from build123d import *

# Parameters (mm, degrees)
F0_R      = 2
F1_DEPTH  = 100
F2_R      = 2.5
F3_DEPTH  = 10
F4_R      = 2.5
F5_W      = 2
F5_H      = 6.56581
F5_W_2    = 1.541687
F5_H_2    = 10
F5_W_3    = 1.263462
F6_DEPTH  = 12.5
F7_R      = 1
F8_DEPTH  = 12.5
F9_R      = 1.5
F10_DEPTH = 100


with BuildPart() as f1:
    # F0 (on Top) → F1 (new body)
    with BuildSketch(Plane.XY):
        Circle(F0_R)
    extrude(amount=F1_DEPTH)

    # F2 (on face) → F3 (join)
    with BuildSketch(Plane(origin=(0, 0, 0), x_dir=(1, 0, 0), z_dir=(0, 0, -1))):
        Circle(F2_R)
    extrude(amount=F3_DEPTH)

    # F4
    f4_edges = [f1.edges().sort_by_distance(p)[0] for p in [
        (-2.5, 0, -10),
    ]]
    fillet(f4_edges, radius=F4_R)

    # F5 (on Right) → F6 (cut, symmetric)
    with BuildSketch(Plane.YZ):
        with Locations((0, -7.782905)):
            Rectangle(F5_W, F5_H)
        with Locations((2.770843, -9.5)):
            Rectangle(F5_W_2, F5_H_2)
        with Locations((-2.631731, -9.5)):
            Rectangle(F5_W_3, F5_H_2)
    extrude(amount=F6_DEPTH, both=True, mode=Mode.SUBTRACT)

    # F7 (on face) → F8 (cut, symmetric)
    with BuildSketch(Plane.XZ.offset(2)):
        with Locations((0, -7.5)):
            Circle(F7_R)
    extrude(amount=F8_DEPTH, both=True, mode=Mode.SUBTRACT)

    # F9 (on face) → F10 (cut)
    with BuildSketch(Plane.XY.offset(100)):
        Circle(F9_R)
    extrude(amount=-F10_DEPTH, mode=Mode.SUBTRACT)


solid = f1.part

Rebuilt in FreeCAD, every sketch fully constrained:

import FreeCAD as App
import Part
import Sketcher
from FreeCAD import Vector
Q = App.Units.Quantity


def edges_at(feature, points):
    """Names of the edges that pass closest to the given points."""
    edges = feature.Shape.Edges
    near = lambda p: min(range(len(edges)), key=lambda i: edges[i].distToShape(Part.Vertex(*p))[0])
    return sorted({f"Edge{near(p) + 1}" for p in points})

doc = App.newDocument("Part")
params = doc.addObject("Spreadsheet::Sheet", "Params")
for row, (alias, value) in enumerate([
    ("sketch1_diameter", "4 mm"),
    ("pad1_length", "100 mm"),
    ("sketch2_diameter", "5 mm"),
    ("pad2_length", "10 mm"),
    ("fillet_radius", "2.5 mm"),
    ("sketch3_width", "2 mm"),
    ("sketch3_height", "10 mm"),
    ("pocket1_length", "25 mm"),
    ("sketch4_diameter", "2 mm"),
    ("pocket2_length", "25 mm"),
    ("sketch5_diameter", "3 mm"),
    ("pocket3_length", "100 mm"),
], start=1):
    params.set(f"A{row}", alias)
    params.set(f"B{row}", "=" + value)
    params.setAlias(f"B{row}", alias)

body = doc.addObject("PartDesign::Body", "Body")

# Sketch on XY plane
sketch1 = body.newObject("Sketcher::SketchObject", "Sketch")
sketch1.AttachmentSupport = (doc.getObject("XY_Plane"), [""])
sketch1.MapMode = "FlatFace"
sketch1.addGeometry(Part.Circle(Vector(0, 0, 0), Vector(0, 0, 1), 2), False)
sketch1.addConstraint([
    Sketcher.Constraint("Coincident", 0, 3, -1, 1),
    Sketcher.Constraint("Diameter", 0, Q("4 mm")),
])
sketch1.setExpression("Constraints[1]", "Params.sketch1_diameter")
pad1 = body.newObject("PartDesign::Pad", "Pad")
pad1.Profile = sketch1
pad1.setExpression("Length", "Params.pad1_length")

# Sketch on XY plane
sketch2 = body.newObject("Sketcher::SketchObject", "Sketch001")
sketch2.AttachmentSupport = (doc.getObject("XY_Plane"), [""])
sketch2.MapMode = "FlatFace"
sketch2.addGeometry(Part.Circle(Vector(0, 0, 0), Vector(0, 0, 1), 2.5), False)
sketch2.addConstraint([
    Sketcher.Constraint("Coincident", 0, 3, -1, 1),
    Sketcher.Constraint("Diameter", 0, Q("5 mm")),
])
sketch2.setExpression("Constraints[1]", "Params.sketch2_diameter")
pad2 = body.newObject("PartDesign::Pad", "Pad001")
pad2.Profile = sketch2
pad2.setExpression("Length", "Params.pad2_length")
pad2.Reversed = True
doc.recompute()

fillet = body.newObject("PartDesign::Fillet", "Fillet")
fillet.Base = (pad2, edges_at(pad2, [(-2.5, 0, -10)]))
fillet.setExpression("Radius", "Params.fillet_radius")

# Sketch on YZ plane
sketch3 = body.newObject("Sketcher::SketchObject", "Sketch002")
sketch3.AttachmentSupport = (doc.getObject("YZ_Plane"), [""])
sketch3.MapMode = "FlatFace"
sketch3.addGeometry([
    Part.LineSegment(Vector(-1, -4.5, 0), Vector(-1, -11.06581, 0)),  # 0
    Part.LineSegment(Vector(-1, -11.06581, 0), Vector(1, -11.06581, 0)),  # 1
    Part.LineSegment(Vector(1, -11.06581, 0), Vector(1, -4.5, 0)),  # 2
    Part.LineSegment(Vector(1, -4.5, 0), Vector(-1, -4.5, 0)),  # 3
    Part.LineSegment(Vector(1.999999, -4.5, 0), Vector(1.999999, -14.5, 0)),  # 4
    Part.LineSegment(Vector(1.999999, -14.5, 0), Vector(3.541686, -14.5, 0)),  # 5
    Part.LineSegment(Vector(3.541686, -14.5, 0), Vector(3.541686, -4.5, 0)),  # 6
    Part.LineSegment(Vector(3.541686, -4.5, 0), Vector(1.999999, -4.5, 0)),  # 7
    Part.LineSegment(Vector(-3.263462, -4.5, 0), Vector(-3.263462, -14.5, 0)),  # 8
    Part.LineSegment(Vector(-3.263462, -14.5, 0), Vector(-2, -14.5, 0)),  # 9
    Part.LineSegment(Vector(-2, -14.5, 0), Vector(-2, -4.5, 0)),  # 10
    Part.LineSegment(Vector(-2, -4.5, 0), Vector(-3.263462, -4.5, 0)),  # 11
], False)
sketch3.addConstraint([
    Sketcher.Constraint("Coincident", 0, 2, 1, 1),
    Sketcher.Constraint("Coincident", 1, 2, 2, 1),
    Sketcher.Constraint("Coincident", 2, 2, 3, 1),
    Sketcher.Constraint("Coincident", 3, 2, 0, 1),
    Sketcher.Constraint("Coincident", 4, 2, 5, 1),
    Sketcher.Constraint("Coincident", 5, 2, 6, 1),
    Sketcher.Constraint("Coincident", 6, 2, 7, 1),
    Sketcher.Constraint("Coincident", 7, 2, 4, 1),
    Sketcher.Constraint("Coincident", 8, 2, 9, 1),
    Sketcher.Constraint("Coincident", 9, 2, 10, 1),
    Sketcher.Constraint("Coincident", 10, 2, 11, 1),
    Sketcher.Constraint("Coincident", 11, 2, 8, 1),
    Sketcher.Constraint("Vertical", 0),
    Sketcher.Constraint("Horizontal", 1),
    Sketcher.Constraint("Vertical", 2),
    Sketcher.Constraint("Horizontal", 3),
    Sketcher.Constraint("Vertical", 4),
    Sketcher.Constraint("Horizontal", 5),
    Sketcher.Constraint("Vertical", 6),
    Sketcher.Constraint("Horizontal", 7),
    Sketcher.Constraint("Vertical", 8),
    Sketcher.Constraint("Horizontal", 9),
    Sketcher.Constraint("Vertical", 10),
    Sketcher.Constraint("Horizontal", 11),
    Sketcher.Constraint("Symmetric", 4, 2, 9, 2, -2),
    Sketcher.Constraint("Horizontal", 3, 2, 6, 2),
    Sketcher.Constraint("Horizontal", 7, 2, 10, 2),
    Sketcher.Constraint("DistanceX", 1, 1, 1, 2, Q("2 mm")),
    Sketcher.Constraint("DistanceY", 4, 2, 4, 1, Q("10 mm")),
    Sketcher.Constraint("DistanceX", 0, 2, -1, 1, Q("1 mm")),
    Sketcher.Constraint("DistanceX", -1, 1, 4, 2, Q("1.999999 mm")),
    Sketcher.Constraint("DistanceY", 2, 2, -1, 1, Q("4.5 mm")),
    Sketcher.Constraint("DistanceY", 0, 2, 0, 1, Q("6.56581 mm")),
    Sketcher.Constraint("DistanceX", 5, 1, 5, 2, Q("1.541687 mm")),
    Sketcher.Constraint("DistanceX", 9, 1, 9, 2, Q("1.263462 mm")),
])
sketch3.setExpression("Constraints[27]", "Params.sketch3_width")
sketch3.setExpression("Constraints[28]", "Params.sketch3_height")
pocket1 = body.newObject("PartDesign::Pocket", "Pocket")
pocket1.Profile = sketch3
pocket1.setExpression("Length", "Params.pocket1_length")
pocket1.Midplane = True

# Sketch on XZ plane
sketch4 = body.newObject("Sketcher::SketchObject", "Sketch003")
sketch4.AttachmentSupport = (doc.getObject("XZ_Plane"), [""])
sketch4.MapMode = "FlatFace"
sketch4.AttachmentOffset = App.Placement(Vector(0, 0, 2), App.Rotation())
sketch4.addGeometry(Part.Circle(Vector(0, -7.5, 0), Vector(0, 0, 1), 1), False)
sketch4.addConstraint([
    Sketcher.Constraint("PointOnObject", 0, 3, -2),
    Sketcher.Constraint("Diameter", 0, Q("2 mm")),
    Sketcher.Constraint("DistanceY", 0, 3, -1, 1, Q("7.5 mm")),
])
sketch4.setExpression("Constraints[1]", "Params.sketch4_diameter")
pocket2 = body.newObject("PartDesign::Pocket", "Pocket001")
pocket2.Profile = sketch4
pocket2.setExpression("Length", "Params.pocket2_length")
pocket2.Midplane = True

# Sketch on XY plane
sketch5 = body.newObject("Sketcher::SketchObject", "Sketch004")
sketch5.AttachmentSupport = (doc.getObject("XY_Plane"), [""])
sketch5.MapMode = "FlatFace"
sketch5.AttachmentOffset = App.Placement(Vector(0, 0, 100), App.Rotation())
sketch5.addGeometry(Part.Circle(Vector(0, 0, 0), Vector(0, 0, 1), 1.5), False)
sketch5.addConstraint([
    Sketcher.Constraint("Coincident", 0, 3, -1, 1),
    Sketcher.Constraint("Diameter", 0, Q("3 mm")),
])
sketch5.setExpression("Constraints[1]", "Params.sketch5_diameter")
pocket3 = body.newObject("PartDesign::Pocket", "Pocket002")
pocket3.Profile = sketch5
pocket3.setExpression("Length", "Params.pocket3_length")

doc.recompute()
